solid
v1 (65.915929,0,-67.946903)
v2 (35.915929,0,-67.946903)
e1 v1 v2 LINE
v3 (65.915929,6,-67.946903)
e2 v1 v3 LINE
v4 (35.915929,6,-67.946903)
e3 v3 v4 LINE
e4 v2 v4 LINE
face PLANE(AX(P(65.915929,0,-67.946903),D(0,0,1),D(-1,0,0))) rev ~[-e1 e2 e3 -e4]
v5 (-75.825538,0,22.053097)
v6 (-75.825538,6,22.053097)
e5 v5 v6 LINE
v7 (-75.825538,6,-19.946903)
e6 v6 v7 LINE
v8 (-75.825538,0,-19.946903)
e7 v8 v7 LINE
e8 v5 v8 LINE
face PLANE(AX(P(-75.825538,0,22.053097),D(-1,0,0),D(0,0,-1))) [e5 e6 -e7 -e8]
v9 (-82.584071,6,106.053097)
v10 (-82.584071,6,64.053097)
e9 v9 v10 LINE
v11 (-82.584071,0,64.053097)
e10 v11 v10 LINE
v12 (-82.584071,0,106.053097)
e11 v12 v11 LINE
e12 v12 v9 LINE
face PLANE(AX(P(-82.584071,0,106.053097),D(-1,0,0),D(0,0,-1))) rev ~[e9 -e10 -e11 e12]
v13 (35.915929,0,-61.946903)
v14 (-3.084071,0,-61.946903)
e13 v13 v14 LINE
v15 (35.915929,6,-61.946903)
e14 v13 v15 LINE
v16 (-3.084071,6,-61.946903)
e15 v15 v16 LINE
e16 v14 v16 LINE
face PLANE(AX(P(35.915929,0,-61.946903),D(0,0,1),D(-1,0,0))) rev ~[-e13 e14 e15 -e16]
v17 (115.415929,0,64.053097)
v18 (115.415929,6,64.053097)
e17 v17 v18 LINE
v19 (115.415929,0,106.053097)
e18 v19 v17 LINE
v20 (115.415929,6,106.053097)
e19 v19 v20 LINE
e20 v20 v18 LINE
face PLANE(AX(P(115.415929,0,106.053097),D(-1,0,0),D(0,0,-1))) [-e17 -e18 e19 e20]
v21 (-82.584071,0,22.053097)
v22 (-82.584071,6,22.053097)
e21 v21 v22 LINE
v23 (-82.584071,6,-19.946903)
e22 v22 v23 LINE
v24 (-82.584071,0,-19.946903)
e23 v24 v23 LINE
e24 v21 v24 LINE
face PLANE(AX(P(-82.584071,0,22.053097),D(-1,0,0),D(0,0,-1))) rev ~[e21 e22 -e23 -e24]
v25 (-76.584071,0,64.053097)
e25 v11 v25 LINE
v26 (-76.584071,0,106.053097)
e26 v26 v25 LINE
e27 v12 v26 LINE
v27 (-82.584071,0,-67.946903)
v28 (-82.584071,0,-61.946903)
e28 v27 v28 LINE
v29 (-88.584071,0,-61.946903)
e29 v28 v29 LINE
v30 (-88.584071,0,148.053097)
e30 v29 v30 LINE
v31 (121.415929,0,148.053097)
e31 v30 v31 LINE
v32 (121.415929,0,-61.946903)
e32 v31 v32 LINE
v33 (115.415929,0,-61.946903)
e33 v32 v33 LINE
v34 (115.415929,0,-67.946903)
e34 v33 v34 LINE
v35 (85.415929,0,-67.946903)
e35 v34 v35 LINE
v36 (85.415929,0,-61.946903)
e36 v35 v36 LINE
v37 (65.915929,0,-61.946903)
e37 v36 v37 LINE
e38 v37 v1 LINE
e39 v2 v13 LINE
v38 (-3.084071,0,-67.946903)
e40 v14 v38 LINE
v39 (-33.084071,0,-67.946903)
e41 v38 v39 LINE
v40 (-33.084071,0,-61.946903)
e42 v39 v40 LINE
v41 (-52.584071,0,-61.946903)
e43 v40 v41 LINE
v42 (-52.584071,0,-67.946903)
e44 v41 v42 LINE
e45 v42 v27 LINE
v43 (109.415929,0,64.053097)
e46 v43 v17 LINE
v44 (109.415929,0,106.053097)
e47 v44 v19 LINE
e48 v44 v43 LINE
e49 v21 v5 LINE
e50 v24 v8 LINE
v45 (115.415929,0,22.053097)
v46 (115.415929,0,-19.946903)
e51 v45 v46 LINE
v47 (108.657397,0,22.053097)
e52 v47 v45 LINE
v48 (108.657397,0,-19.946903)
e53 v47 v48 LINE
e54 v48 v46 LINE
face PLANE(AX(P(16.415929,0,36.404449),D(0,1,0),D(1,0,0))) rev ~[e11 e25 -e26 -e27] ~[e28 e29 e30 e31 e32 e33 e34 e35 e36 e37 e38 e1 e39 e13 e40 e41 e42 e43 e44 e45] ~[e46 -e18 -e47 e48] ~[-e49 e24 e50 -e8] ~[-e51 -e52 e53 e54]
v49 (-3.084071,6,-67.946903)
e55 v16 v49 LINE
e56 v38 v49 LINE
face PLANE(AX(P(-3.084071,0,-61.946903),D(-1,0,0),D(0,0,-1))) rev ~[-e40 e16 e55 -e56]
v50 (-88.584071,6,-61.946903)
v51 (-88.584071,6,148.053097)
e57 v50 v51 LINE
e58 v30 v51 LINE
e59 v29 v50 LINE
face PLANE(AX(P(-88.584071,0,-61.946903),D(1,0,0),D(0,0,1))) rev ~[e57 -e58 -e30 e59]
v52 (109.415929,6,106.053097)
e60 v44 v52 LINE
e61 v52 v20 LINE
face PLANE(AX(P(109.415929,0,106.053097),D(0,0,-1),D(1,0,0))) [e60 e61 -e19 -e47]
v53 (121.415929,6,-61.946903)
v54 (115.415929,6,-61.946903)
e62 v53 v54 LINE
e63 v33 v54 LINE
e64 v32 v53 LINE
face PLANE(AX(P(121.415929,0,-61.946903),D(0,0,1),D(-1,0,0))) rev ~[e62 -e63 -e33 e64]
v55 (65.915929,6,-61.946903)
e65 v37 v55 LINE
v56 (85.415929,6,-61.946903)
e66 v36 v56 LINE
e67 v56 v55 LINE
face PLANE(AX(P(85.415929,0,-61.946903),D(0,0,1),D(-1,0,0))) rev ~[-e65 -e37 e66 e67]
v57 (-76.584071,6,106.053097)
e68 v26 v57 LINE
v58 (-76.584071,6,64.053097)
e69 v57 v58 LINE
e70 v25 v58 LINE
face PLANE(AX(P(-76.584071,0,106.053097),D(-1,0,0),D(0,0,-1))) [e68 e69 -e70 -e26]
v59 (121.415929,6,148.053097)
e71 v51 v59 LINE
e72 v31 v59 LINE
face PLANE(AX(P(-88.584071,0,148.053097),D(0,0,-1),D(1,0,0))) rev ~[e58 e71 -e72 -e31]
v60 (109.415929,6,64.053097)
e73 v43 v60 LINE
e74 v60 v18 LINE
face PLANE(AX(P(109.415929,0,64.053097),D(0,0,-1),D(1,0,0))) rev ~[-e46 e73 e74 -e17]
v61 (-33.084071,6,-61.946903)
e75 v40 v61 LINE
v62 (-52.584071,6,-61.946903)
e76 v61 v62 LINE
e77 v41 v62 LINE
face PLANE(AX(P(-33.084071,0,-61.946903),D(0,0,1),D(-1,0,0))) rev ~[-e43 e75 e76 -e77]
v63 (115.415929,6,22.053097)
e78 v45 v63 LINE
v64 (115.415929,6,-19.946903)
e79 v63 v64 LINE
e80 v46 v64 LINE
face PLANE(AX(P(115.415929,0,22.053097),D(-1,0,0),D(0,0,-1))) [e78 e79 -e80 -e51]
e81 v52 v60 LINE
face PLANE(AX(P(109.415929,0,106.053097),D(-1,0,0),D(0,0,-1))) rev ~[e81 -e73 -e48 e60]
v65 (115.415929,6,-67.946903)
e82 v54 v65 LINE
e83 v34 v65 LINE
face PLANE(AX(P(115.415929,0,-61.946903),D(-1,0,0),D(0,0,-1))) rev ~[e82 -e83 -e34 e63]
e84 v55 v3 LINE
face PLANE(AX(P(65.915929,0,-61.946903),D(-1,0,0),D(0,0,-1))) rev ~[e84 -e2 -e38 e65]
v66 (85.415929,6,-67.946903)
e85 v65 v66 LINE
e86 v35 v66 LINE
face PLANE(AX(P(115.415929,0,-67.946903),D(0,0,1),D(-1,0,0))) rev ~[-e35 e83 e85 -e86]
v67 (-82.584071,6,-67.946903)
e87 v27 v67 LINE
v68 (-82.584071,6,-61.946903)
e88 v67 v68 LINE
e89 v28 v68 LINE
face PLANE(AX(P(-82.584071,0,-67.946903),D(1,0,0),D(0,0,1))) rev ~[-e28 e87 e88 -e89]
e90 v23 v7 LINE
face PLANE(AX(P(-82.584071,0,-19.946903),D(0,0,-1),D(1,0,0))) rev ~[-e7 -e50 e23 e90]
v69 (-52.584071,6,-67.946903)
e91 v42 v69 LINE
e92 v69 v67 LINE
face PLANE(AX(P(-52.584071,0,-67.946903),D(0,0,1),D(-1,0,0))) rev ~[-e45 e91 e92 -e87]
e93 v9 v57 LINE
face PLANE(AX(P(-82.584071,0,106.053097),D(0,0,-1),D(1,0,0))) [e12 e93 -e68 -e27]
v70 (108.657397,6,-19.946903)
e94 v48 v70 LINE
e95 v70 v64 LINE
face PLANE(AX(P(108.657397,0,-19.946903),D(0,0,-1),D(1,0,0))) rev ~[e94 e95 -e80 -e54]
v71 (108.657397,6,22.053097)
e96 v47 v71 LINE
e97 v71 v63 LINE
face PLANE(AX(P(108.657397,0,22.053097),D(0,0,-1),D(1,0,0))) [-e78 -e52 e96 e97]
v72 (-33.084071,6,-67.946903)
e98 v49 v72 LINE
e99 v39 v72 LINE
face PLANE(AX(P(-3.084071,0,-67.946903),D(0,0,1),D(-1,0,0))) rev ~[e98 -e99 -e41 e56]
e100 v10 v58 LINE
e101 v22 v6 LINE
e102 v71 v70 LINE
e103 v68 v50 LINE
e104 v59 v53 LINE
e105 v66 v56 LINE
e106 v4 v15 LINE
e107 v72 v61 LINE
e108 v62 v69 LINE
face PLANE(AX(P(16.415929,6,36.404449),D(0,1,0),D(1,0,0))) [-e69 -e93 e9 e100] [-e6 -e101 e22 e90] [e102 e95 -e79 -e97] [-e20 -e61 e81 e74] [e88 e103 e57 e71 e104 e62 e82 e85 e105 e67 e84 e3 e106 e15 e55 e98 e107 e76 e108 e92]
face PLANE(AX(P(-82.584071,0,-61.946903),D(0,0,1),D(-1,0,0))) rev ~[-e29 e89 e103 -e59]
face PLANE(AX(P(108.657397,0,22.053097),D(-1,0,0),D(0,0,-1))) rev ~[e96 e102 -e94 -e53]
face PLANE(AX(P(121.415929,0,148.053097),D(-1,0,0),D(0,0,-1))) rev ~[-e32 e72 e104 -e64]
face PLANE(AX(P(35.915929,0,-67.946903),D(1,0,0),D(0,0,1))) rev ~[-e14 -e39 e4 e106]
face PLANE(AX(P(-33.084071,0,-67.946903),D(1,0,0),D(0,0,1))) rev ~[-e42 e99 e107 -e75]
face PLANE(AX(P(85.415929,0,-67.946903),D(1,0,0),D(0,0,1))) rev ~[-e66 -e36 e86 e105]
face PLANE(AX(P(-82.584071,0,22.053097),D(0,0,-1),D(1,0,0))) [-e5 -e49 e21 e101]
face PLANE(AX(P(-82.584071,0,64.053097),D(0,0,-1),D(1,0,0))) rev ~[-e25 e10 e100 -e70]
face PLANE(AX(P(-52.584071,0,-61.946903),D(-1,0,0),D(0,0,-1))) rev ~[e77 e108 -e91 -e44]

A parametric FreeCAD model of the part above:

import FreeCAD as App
import Part
import Sketcher
Q = App.Units.Quantity

doc = App.newDocument("Part")
body = doc.addObject("PartDesign::Body", "Body")

# Sketch on XZ plane
sketch1 = body.newObject("Sketcher::SketchObject", "Sketch")
sketch1.AttachmentSupport = (doc.getObject("XZ_Plane"), [""])
sketch1.MapMode = "FlatFace"
sketch1.addGeometry([
    Part.LineSegment(App.Vector(-89, -62, 0), App.Vector(-89, 148, 0)),  # 0
    Part.LineSegment(App.Vector(-89, 148, 0), App.Vector(121, 148, 0)),  # 1
    Part.LineSegment(App.Vector(121, 148, 0), App.Vector(121, -62, 0)),  # 2
    Part.LineSegment(App.Vector(121, -62, 0), App.Vector(115, -62, 0)),  # 3
    Part.LineSegment(App.Vector(115, -62, 0), App.Vector(115, -68, 0)),  # 4
    Part.LineSegment(App.Vector(115, -68, 0), App.Vector(85, -68, 0)),  # 5
    Part.LineSegment(App.Vector(85, -68, 0), App.Vector(85, -62, 0)),  # 6
    Part.LineSegment(App.Vector(85, -62, 0), App.Vector(66, -62, 0)),  # 7
    Part.LineSegment(App.Vector(66, -62, 0), App.Vector(66, -68, 0)),  # 8
    Part.LineSegment(App.Vector(66, -68, 0), App.Vector(36, -68, 0)),  # 9
    Part.LineSegment(App.Vector(36, -68, 0), App.Vector(36, -62, 0)),  # 10
    Part.LineSegment(App.Vector(36, -62, 0), App.Vector(-3, -62, 0)),  # 11
    Part.LineSegment(App.Vector(-3, -62, 0), App.Vector(-3, -68, 0)),  # 12
    Part.LineSegment(App.Vector(-3, -68, 0), App.Vector(-33, -68, 0)),  # 13
    Part.LineSegment(App.Vector(-33, -68, 0), App.Vector(-33, -62, 0)),  # 14
    Part.LineSegment(App.Vector(-33, -62, 0), App.Vector(-53, -62, 0)),  # 15
    Part.LineSegment(App.Vector(-53, -62, 0), App.Vector(-53, -68, 0)),  # 16
    Part.LineSegment(App.Vector(-53, -68, 0), App.Vector(-83, -68, 0)),  # 17
    Part.LineSegment(App.Vector(-83, -68, 0), App.Vector(-83, -62, 0)),  # 18
    Part.LineSegment(App.Vector(-83, -62, 0), App.Vector(-89, -62, 0)),  # 19
    Part.LineSegment(App.Vector(-77, 106, 0), App.Vector(-83, 106, 0)),  # 20
    Part.LineSegment(App.Vector(-83, 106, 0), App.Vector(-83, 64, 0)),  # 21
    Part.LineSegment(App.Vector(-83, 64, 0), App.Vector(-77, 64, 0)),  # 22
    Part.LineSegment(App.Vector(-77, 64, 0), App.Vector(-77, 106, 0)),  # 23
    Part.LineSegment(App.Vector(115, 106, 0), App.Vector(109, 106, 0)),  # 24
    Part.LineSegment(App.Vector(109, 106, 0), App.Vector(109, 64, 0)),  # 25
    Part.LineSegment(App.Vector(109, 64, 0), App.Vector(115, 64, 0)),  # 26
    Part.LineSegment(App.Vector(115, 64, 0), App.Vector(115, 106, 0)),  # 27
    Part.LineSegment(App.Vector(-76, 22, 0), App.Vector(-83, 22, 0)),  # 28
    Part.LineSegment(App.Vector(-83, 22, 0), App.Vector(-83, -20, 0)),  # 29
    Part.LineSegment(App.Vector(-83, -20, 0), App.Vector(-76, -20, 0)),  # 30
    Part.LineSegment(App.Vector(-76, -20, 0), App.Vector(-76, 22, 0)),  # 31
    Part.LineSegment(App.Vector(115, 22, 0), App.Vector(109, 22, 0)),  # 32
    Part.LineSegment(App.Vector(109, 22, 0), App.Vector(109, -20, 0)),  # 33
    Part.LineSegment(App.Vector(109, -20, 0), App.Vector(115, -20, 0)),  # 34
    Part.LineSegment(App.Vector(115, -20, 0), App.Vector(115, 22, 0)),  # 35
], False)
sketch1.addConstraint([
    Sketcher.Constraint("Coincident", 0, 2, 1, 1),
    Sketcher.Constraint("Coincident", 1, 2, 2, 1),
    Sketcher.Constraint("Coincident", 2, 2, 3, 1),
    Sketcher.Constraint("Coincident", 3, 2, 4, 1),
    Sketcher.Constraint("Coincident", 4, 2, 5, 1),
    Sketcher.Constraint("Coincident", 5, 2, 6, 1),
    Sketcher.Constraint("Coincident", 6, 2, 7, 1),
    Sketcher.Constraint("Coincident", 7, 2, 8, 1),
    Sketcher.Constraint("Coincident", 8, 2, 9, 1),
    Sketcher.Constraint("Coincident", 9, 2, 10, 1),
    Sketcher.Constraint("Coincident", 10, 2, 11, 1),
    Sketcher.Constraint("Coincident", 11, 2, 12, 1),
    Sketcher.Constraint("Coincident", 12, 2, 13, 1),
    Sketcher.Constraint("Coincident", 13, 2, 14, 1),
    Sketcher.Constraint("Coincident", 14, 2, 15, 1),
    Sketcher.Constraint("Coincident", 15, 2, 16, 1),
    Sketcher.Constraint("Coincident", 16, 2, 17, 1),
    Sketcher.Constraint("Coincident", 17, 2, 18, 1),
    Sketcher.Constraint("Coincident", 18, 2, 19, 1),
    Sketcher.Constraint("Coincident", 19, 2, 0, 1),
    Sketcher.Constraint("Coincident", 20, 2, 21, 1),
    Sketcher.Constraint("Coincident", 21, 2, 22, 1),
    Sketcher.Constraint("Coincident", 22, 2, 23, 1),
    Sketcher.Constraint("Coincident", 23, 2, 20, 1),
    Sketcher.Constraint("Coincident", 24, 2, 25, 1),
    Sketcher.Constraint("Coincident", 25, 2, 26, 1),
    Sketcher.Constraint("Coincident", 26, 2, 27, 1),
    Sketcher.Constraint("Coincident", 27, 2, 24, 1),
    Sketcher.Constraint("Coincident", 28, 2, 29, 1),
    Sketcher.Constraint("Coincident", 29, 2, 30, 1),
    Sketcher.Constraint("Coincident", 30, 2, 31, 1),
    Sketcher.Constraint("Coincident", 31, 2, 28, 1),
    Sketcher.Constraint("Coincident", 32, 2, 33, 1),
    Sketcher.Constraint("Coincident", 33, 2, 34, 1),
    Sketcher.Constraint("Coincident", 34, 2, 35, 1),
    Sketcher.Constraint("Coincident", 35, 2, 32, 1),
    Sketcher.Constraint("Vertical", 0),
    Sketcher.Constraint("Horizontal", 1),
    Sketcher.Constraint("Vertical", 2),
    Sketcher.Constraint("Horizontal", 3),
    Sketcher.Constraint("Vertical", 4),
    Sketcher.Constraint("Horizontal", 5),
    Sketcher.Constraint("Vertical", 6),
    Sketcher.Constraint("Horizontal", 7),
    Sketcher.Constraint("Vertical", 8),
    Sketcher.Constraint("Horizontal", 9),
    Sketcher.Constraint("Vertical", 10),
    Sketcher.Constraint("Horizontal", 11),
    Sketcher.Constraint("Vertical", 12),
    Sketcher.Constraint("Horizontal", 13),
    Sketcher.Constraint("Vertical", 14),
    Sketcher.Constraint("Horizontal", 15),
    Sketcher.Constraint("Vertical", 16),
    Sketcher.Constraint("Horizontal", 17),
    Sketcher.Constraint("Vertical", 18),
    Sketcher.Constraint("Horizontal", 19),
    Sketcher.Constraint("Horizontal", 20),
    Sketcher.Constraint("Vertical", 21),
    Sketcher.Constraint("Horizontal", 22),
    Sketcher.Constraint("Vertical", 23),
    Sketcher.Constraint("Horizontal", 24),
    Sketcher.Constraint("Vertical", 25),
    Sketcher.Constraint("Horizontal", 26),
    Sketcher.Constraint("Vertical", 27),
    Sketcher.Constraint("Horizontal", 28),
    Sketcher.Constraint("Vertical", 29),
    Sketcher.Constraint("Horizontal", 30),
    Sketcher.Constraint("Vertical", 31),
    Sketcher.Constraint("Horizontal", 32),
    Sketcher.Constraint("Vertical", 33),
    Sketcher.Constraint("Horizontal", 34),
    Sketcher.Constraint("Vertical", 35),
    Sketcher.Constraint("Horizontal", 3, 2, 6, 2),
    Sketcher.Constraint("Horizontal", 5, 2, 8, 2),
    Sketcher.Constraint("Horizontal", 7, 2, 10, 2),
    Sketcher.Constraint("Horizontal", 9, 2, 12, 2),
    Sketcher.Constraint("Horizontal", 11, 2, 14, 2),
    Sketcher.Constraint("Horizontal", 13, 2, 16, 2),
    Sketcher.Constraint("Horizontal", 15, 2, 18, 2),
    Sketcher.Constraint("Horizontal", 23, 2, 24, 2),
    Sketcher.Constraint("Horizontal", 22, 2, 25, 2),
    Sketcher.Constraint("Horizontal", 31, 2, 32, 2),
    Sketcher.Constraint("Horizontal", 30, 2, 33, 2),
    Sketcher.Constraint("Vertical", 18, 2, 20, 2),
    Sketcher.Constraint("Vertical", 4, 2, 26, 2),
    Sketcher.Constraint("Vertical", 21, 2, 28, 2),
    Sketcher.Constraint("Vertical", 27, 2, 34, 2),
    Sketcher.Constraint("Equal", 5, 9),
    Sketcher.Constraint("Equal", 9, 13),
    Sketcher.Constraint("Equal", 7, 15),
    Sketcher.Constraint("Equal", 13, 17),
    Sketcher.Constraint("Equal", 3, 19),
    Sketcher.Constraint("Equal", 19, 20),
    Sketcher.Constraint("Equal", 22, 24),
    Sketcher.Constraint("Equal", 30, 32),
    Sketcher.Constraint("Equal", 1, 0),
    Sketcher.Constraint("Equal", 26, 4),
    Sketcher.Constraint("Equal", 27, 29),
    Sketcher.Constraint("DistanceX", 1, 1, 1, 2, Q("210 mm")),
    Sketcher.Constraint("DistanceX", 3, 2, 3, 1, Q("6 mm")),
    Sketcher.Constraint("DistanceX", 5, 2, 5, 1, Q("30 mm")),
    Sketcher.Constraint("DistanceX", 11, 2, 11, 1, Q("39 mm")),
    Sketcher.Constraint("DistanceY", 21, 2, 21, 1, Q("42 mm")),
    Sketcher.Constraint("DistanceY", 20, 2, 0, 2, Q("42 mm")),
    Sketcher.Constraint("DistanceY", 28, 2, 21, 2, Q("42 mm")),
    Sketcher.Constraint("DistanceX", 28, 2, 28, 1, Q("6.758533 mm")),
    Sketcher.Constraint("DistanceX", 0, 2, -1, 1, Q("88.584071 mm")),
    Sketcher.Constraint("DistanceY", -1, 1, 0, 2, Q("148.053097 mm")),
])
pad1 = body.newObject("PartDesign::Pad", "Pad")
pad1.Profile = sketch1
pad1.Length = 6
pad1.Reversed = True

doc.recompute()
